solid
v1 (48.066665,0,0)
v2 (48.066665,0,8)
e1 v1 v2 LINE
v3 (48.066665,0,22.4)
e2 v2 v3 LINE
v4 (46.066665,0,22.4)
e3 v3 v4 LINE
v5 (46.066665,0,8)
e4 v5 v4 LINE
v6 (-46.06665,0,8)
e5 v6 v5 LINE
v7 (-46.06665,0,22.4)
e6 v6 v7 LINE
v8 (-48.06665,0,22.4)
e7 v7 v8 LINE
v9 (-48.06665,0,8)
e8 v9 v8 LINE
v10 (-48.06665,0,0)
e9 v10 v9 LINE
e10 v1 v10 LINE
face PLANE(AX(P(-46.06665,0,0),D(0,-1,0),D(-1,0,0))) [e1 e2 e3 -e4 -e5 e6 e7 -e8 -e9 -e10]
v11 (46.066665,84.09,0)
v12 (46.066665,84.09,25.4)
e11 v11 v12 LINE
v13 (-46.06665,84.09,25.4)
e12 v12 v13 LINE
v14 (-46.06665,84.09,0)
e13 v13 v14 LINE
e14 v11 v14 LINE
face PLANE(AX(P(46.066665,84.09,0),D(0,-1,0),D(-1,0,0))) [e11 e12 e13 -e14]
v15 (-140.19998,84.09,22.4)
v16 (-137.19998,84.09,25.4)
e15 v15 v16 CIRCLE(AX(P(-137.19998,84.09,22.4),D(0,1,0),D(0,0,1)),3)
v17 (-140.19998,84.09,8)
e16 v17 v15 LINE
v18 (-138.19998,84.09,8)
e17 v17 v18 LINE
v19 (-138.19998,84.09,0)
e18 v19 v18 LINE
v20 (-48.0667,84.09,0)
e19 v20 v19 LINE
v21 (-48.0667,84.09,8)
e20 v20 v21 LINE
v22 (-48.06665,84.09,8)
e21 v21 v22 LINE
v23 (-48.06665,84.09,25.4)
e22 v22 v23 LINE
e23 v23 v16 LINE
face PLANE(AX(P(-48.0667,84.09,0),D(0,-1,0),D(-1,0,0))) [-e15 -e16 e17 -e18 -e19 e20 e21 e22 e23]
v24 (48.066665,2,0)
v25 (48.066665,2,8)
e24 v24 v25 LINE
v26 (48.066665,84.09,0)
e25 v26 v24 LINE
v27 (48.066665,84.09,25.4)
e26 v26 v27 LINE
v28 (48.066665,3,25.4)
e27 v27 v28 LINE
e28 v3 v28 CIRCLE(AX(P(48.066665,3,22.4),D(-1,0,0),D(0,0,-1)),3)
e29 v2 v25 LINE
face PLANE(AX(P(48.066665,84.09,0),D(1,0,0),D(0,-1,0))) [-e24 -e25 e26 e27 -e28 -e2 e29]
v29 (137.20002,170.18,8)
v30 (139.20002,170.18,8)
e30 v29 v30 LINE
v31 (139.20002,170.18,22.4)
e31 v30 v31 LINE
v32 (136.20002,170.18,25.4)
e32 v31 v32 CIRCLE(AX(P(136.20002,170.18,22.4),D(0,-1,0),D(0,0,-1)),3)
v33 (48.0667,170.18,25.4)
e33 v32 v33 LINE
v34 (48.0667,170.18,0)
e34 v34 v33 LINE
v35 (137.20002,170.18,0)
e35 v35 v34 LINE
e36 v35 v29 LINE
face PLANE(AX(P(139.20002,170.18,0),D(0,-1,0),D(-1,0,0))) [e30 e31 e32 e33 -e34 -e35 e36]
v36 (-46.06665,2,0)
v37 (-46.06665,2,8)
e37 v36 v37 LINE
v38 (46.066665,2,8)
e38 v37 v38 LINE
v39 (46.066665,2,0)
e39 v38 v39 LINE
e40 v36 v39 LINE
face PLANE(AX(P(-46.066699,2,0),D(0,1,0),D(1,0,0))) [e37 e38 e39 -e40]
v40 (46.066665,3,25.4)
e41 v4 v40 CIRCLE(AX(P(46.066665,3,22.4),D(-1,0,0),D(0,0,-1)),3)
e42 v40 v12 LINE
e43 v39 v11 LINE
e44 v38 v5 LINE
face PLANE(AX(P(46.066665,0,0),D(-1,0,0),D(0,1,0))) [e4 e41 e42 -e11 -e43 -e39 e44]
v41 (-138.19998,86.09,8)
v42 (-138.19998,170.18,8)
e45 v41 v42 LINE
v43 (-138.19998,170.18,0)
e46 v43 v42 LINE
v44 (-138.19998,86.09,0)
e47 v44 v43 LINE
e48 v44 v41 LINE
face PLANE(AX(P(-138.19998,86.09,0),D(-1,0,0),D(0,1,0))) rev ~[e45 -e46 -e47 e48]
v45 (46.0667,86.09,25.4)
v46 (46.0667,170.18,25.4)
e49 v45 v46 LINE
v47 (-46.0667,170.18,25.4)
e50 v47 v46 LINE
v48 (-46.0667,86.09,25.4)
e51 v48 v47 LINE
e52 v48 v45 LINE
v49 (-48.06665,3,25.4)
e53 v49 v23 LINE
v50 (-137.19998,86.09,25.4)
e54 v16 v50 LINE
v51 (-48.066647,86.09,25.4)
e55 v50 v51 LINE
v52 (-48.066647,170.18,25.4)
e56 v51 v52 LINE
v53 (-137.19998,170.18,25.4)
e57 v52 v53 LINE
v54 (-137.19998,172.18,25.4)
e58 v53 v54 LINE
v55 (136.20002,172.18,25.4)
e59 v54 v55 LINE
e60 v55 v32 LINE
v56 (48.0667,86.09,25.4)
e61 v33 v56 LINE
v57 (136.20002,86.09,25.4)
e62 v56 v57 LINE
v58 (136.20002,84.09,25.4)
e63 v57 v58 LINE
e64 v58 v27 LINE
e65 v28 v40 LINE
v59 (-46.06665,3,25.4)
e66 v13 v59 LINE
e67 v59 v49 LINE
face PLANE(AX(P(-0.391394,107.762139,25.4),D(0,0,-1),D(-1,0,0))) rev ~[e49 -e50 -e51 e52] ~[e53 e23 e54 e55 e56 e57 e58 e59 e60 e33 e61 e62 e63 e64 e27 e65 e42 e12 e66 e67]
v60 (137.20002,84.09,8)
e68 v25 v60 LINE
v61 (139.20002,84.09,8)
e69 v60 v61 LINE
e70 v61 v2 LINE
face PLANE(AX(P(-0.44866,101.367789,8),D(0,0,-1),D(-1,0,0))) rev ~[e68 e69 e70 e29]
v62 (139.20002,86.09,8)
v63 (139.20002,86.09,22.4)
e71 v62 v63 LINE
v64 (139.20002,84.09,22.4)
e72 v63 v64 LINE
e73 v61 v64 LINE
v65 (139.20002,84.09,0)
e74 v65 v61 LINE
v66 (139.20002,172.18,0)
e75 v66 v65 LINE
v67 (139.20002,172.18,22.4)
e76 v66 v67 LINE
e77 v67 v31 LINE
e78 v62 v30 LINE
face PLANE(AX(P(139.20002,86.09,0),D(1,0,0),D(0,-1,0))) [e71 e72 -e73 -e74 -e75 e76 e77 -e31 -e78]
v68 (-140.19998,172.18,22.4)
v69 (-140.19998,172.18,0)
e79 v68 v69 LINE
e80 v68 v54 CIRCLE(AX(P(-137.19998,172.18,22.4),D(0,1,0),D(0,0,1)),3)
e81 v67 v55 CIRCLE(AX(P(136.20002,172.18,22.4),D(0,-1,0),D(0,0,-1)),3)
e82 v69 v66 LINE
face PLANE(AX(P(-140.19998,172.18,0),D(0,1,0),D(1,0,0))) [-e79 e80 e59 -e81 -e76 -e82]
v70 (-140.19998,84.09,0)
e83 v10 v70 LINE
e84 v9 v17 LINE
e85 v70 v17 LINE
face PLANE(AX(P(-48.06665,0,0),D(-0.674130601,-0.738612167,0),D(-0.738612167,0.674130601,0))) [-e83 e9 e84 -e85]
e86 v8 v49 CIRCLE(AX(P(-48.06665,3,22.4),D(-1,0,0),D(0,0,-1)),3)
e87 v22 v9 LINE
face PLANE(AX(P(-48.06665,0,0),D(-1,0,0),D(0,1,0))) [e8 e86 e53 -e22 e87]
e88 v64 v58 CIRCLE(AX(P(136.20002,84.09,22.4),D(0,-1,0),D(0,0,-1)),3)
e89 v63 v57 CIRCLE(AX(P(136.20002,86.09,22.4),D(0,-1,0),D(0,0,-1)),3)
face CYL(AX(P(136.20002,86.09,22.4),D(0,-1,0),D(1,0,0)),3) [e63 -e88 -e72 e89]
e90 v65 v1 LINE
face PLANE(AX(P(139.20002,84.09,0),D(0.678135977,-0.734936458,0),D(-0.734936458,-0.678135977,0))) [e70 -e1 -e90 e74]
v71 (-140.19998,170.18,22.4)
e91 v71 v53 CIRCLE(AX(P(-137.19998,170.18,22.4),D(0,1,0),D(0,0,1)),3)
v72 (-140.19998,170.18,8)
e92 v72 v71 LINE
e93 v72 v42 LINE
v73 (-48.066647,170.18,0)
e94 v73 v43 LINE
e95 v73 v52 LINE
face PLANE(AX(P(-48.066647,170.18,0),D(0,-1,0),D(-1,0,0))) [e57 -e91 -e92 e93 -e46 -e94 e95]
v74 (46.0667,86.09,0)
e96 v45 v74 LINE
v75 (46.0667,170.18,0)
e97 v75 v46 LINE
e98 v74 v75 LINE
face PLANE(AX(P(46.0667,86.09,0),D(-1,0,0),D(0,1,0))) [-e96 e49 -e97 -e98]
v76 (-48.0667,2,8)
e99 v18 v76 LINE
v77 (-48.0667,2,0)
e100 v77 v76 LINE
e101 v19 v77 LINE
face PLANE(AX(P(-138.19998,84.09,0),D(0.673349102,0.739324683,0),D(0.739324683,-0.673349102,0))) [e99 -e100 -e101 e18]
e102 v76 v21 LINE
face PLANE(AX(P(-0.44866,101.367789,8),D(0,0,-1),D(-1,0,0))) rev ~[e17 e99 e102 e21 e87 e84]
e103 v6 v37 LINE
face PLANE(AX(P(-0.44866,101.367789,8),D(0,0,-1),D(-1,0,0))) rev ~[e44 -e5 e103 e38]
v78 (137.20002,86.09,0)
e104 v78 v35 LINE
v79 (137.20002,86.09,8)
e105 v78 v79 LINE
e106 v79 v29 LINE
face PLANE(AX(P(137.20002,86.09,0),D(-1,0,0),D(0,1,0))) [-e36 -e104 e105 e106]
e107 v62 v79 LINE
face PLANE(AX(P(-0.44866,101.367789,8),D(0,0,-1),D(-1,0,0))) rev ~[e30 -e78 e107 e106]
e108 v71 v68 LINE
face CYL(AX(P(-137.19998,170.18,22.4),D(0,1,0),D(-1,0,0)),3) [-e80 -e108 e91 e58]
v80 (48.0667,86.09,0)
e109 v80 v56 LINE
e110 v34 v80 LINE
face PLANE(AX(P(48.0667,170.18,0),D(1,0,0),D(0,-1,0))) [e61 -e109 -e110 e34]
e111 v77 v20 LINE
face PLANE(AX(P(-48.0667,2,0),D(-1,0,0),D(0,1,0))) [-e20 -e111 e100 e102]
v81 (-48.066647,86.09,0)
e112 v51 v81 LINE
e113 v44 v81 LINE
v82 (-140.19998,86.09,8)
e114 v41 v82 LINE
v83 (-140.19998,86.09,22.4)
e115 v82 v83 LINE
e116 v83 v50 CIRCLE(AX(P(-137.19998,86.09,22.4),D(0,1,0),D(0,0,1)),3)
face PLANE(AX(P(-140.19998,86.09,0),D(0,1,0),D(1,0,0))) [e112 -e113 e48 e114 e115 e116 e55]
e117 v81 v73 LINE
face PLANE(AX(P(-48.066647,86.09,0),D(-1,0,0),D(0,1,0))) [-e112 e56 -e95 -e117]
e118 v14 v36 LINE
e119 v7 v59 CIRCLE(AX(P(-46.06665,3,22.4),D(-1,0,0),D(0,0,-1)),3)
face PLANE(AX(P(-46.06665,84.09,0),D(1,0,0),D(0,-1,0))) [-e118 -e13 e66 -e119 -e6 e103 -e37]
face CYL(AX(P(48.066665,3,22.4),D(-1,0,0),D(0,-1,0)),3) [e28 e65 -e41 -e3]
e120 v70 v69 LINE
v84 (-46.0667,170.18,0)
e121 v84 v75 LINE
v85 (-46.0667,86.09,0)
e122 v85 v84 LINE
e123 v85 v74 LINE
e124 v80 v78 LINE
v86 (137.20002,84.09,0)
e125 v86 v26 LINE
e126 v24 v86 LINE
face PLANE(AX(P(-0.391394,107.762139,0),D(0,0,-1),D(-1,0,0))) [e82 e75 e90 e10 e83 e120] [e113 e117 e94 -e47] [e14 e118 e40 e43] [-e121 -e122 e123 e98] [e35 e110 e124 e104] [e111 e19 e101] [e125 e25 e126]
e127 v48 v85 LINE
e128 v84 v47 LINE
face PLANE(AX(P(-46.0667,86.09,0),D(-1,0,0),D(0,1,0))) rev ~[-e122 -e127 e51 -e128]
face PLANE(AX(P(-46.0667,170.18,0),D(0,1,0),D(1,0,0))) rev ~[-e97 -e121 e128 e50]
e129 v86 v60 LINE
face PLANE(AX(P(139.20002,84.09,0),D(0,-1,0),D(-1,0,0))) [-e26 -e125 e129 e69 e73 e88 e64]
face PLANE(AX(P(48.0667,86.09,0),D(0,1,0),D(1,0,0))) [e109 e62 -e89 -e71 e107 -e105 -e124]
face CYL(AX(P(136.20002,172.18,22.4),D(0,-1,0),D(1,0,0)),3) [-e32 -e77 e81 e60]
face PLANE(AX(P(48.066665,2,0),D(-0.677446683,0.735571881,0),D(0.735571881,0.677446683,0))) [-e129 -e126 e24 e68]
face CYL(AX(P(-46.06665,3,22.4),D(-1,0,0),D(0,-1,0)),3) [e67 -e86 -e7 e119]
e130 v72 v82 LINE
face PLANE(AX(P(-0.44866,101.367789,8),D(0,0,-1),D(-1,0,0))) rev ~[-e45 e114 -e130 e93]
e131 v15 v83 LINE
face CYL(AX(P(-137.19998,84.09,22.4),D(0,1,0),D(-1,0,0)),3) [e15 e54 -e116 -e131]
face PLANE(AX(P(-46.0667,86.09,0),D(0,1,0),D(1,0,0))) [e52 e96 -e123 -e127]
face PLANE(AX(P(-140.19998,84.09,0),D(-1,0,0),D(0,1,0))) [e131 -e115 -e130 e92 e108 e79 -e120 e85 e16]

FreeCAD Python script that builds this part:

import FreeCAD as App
import Part
import Sketcher
Q = App.Units.Quantity


def edges_at(feature, points):
    """Names of the edges that pass closest to the given points."""
    edges = feature.Shape.Edges
    near = lambda p: min(range(len(edges)), key=lambda i: edges[i].distToShape(Part.Vertex(*p))[0])
    return sorted({f"Edge{near(p) + 1}" for p in points})


def add_polygon(sketch, points):
    """Adds a closed chain of lines whose ends are joined by coincident constraints."""
    first, n = sketch.GeometryCount, len(points)
    for a, b in zip(points, points[1:] + points[:1]):
        sketch.addGeometry(Part.LineSegment(App.Vector(*a, 0), App.Vector(*b, 0)), False)
    for i in range(n):
        sketch.addConstraint(Sketcher.Constraint("Coincident", first + i, 2, first + (i + 1) % n, 1))

doc = App.newDocument("Part")
body = doc.addObject("PartDesign::Body", "Body")

# Sketch on XY plane
sketch1 = doc.addObject("Sketcher::SketchObject", "Sketch")
body.addObject(sketch1)
sketch1.AttachmentSupport = (doc.XY_Plane, [""])
sketch1.MapMode = "FlatFace"
add_polygon(sketch1, [(-48.1, 86.1), (-140.2, 86.1), (-140.2, 84.1), (-48.1, 84.1), (-48.1, 0), (-46.1, 0), (-46.1, 84.1), (46.1, 84.1), (46.1, 0), (48.1, 0), (48.1, 84.1), (139.2, 84.1), (139.2, 86.1), (48.1, 86.1), (48.1, 170.2), (139.2, 170.2), (139.2, 172.2), (-140.2, 172.2), (-140.2, 170.2), (-48.1, 170.2)])  # lines 0-19
add_polygon(sketch1, [(-46.1, 86.1), (-46.1, 170.2), (46.1, 170.2), (46.1, 86.1)])  # lines 20-23
sketch1.addConstraint([
    Sketcher.Constraint("Horizontal", 0),
    Sketcher.Constraint("Vertical", 1),
    Sketcher.Constraint("Horizontal", 2),
    Sketcher.Constraint("Vertical", 3),
    Sketcher.Constraint("Horizontal", 4),
    Sketcher.Constraint("Vertical", 5),
    Sketcher.Constraint("Horizontal", 6),
    Sketcher.Constraint("Vertical", 7),
    Sketcher.Constraint("Horizontal", 8),
    Sketcher.Constraint("Vertical", 9),
    Sketcher.Constraint("Horizontal", 10),
    Sketcher.Constraint("Vertical", 11),
    Sketcher.Constraint("Horizontal", 12),
    Sketcher.Constraint("Vertical", 13),
    Sketcher.Constraint("Horizontal", 14),
    Sketcher.Constraint("Vertical", 15),
    Sketcher.Constraint("Horizontal", 16),
    Sketcher.Constraint("Vertical", 17),
    Sketcher.Constraint("Horizontal", 18),
    Sketcher.Constraint("Vertical", 19),
    Sketcher.Constraint("Vertical", 20),
    Sketcher.Constraint("Horizontal", 21),
    Sketcher.Constraint("Vertical", 22),
    Sketcher.Constraint("Horizontal", 23),
    Sketcher.Constraint("PointOnObject", 3, 2, -1),
    Sketcher.Constraint("PointOnObject", 7, 2, -1),
    Sketcher.Constraint("Horizontal", 2, 2, 5, 2),
    Sketcher.Constraint("Horizontal", 6, 2, 9, 2),
    Sketcher.Constraint("Horizontal", 0, 2, 11, 2),
    Sketcher.Constraint("Horizontal", 14, 2, 17, 2),
    Sketcher.Constraint("Horizontal", 18, 2, 20, 2),
    Sketcher.Constraint("Horizontal", 19, 2, 22, 2),
    Sketcher.Constraint("Vertical", 11, 2, 14, 2),
    Sketcher.Constraint("Vertical", 1, 2, 16, 2),
    Sketcher.Constraint("Equal", 4, 8),
    Sketcher.Constraint("Equal", 8, 1),
    Sketcher.Constraint("Equal", 9, 13),
    Sketcher.Constraint("Equal", 11, 15),
    Sketcher.Constraint("DistanceX", 4, 1, 4, 2, Q("2 mm")),
    Sketcher.Constraint("DistanceX", 16, 2, 16, 1, Q("279.4 mm")),
    Sketcher.Constraint("DistanceX", 21, 2, 13, 2, Q("2 mm")),
    Sketcher.Constraint("DistanceY", 3, 2, 3, 1, Q("84.09 mm")),
    Sketcher.Constraint("DistanceX", 21, 1, 21, 2, Q("92.1334 mm")),
    Sketcher.Constraint("DistanceX", 2, 1, 2, 2, Q("92.13333 mm")),
    Sketcher.Constraint("DistanceX", 12, 2, 12, 1, Q("91.13332 mm")),
    Sketcher.Constraint("DistanceX", -1, 1, 12, 2, Q("48.0667 mm")),
    Sketcher.Constraint("DistanceX", 0, 2, 0, 1, Q("92.133333 mm")),
    Sketcher.Constraint("DistanceX", 6, 1, 6, 2, Q("92.133315 mm")),
])
pad1 = doc.addObject("PartDesign::Pad", "Pad")
body.addObject(pad1)
pad1.Profile = sketch1
pad1.Length = 25.4
doc.recompute()

fillet = doc.addObject("PartDesign::Fillet", "Fillet")
body.addObject(fillet)
fillet.Base = (pad1, edges_at(pad1, [
    (-47.067, 0, 25.4),
    (47.067, 0, 25.4),
    (139.2, 171.18, 25.4),
    (139.2, 85.09, 25.4),
    (-140.2, 85.09, 25.4),
    (-140.2, 171.18, 25.4),
]))
fillet.Radius = 3

# Sketch on XY plane
sketch2 = doc.addObject("Sketcher::SketchObject", "Sketch001")
body.addObject(sketch2)
sketch2.AttachmentSupport = (doc.XY_Plane, [""])
sketch2.MapMode = "FlatFace"
add_polygon(sketch2, [(139, 84), (139, 172), (-140, 172), (-140, 84), (-48, 0), (48, 0)])  # lines 0-5
add_polygon(sketch2, [(137, 84), (48, 2), (48, 84)])  # lines 6-8
add_polygon(sketch2, [(-46, 2), (-46, 84), (46, 84), (46, 2)])  # lines 9-12
add_polygon(sketch2, [(-48, 2), (-138, 84), (-48, 84)])  # lines 13-15
add_polygon(sketch2, [(48, 86), (48, 170), (137, 170), (137, 86)])  # lines 16-19
add_polygon(sketch2, [(-46, 86), (-46, 170), (46, 170), (46, 86)])  # lines 20-23
add_polygon(sketch2, [(-138, 86), (-138, 170), (-48, 170), (-48, 86)])  # lines 24-27
sketch2.addConstraint([
    Sketcher.Constraint("Vertical", 0),
    Sketcher.Constraint("Horizontal", 1),
    Sketcher.Constraint("Vertical", 2),
    Sketcher.Constraint("Horizontal", 4),
    Sketcher.Constraint("Vertical", 7),
    Sketcher.Constraint("Horizontal", 8),
    Sketcher.Constraint("Vertical", 9),
    Sketcher.Constraint("Horizontal", 10),
    Sketcher.Constraint("Vertical", 11),
    Sketcher.Constraint("Horizontal", 12),
    Sketcher.Constraint("Horizontal", 14),
    Sketcher.Constraint("Vertical", 15),
    Sketcher.Constraint("Vertical", 16),
    Sketcher.Constraint("Horizontal", 17),
    Sketcher.Constraint("Vertical", 18),
    Sketcher.Constraint("Horizontal", 19),
    Sketcher.Constraint("Vertical", 20),
    Sketcher.Constraint("Horizontal", 21),
    Sketcher.Constraint("Vertical", 22),
    Sketcher.Constraint("Horizontal", 23),
    Sketcher.Constraint("Vertical", 24),
    Sketcher.Constraint("Horizontal", 25),
    Sketcher.Constraint("Vertical", 26),
    Sketcher.Constraint("Horizontal", 27),
    Sketcher.Constraint("PointOnObject", 3, 2, -1),
    Sketcher.Constraint("Horizontal", 2, 2, 5, 2),
    Sketcher.Constraint("Horizontal", 5, 2, 7, 2),
    Sketcher.Constraint("Horizontal", 8, 2, 9, 2),
    Sketcher.Constraint("Horizontal", 6, 2, 11, 2),
    Sketcher.Constraint("Horizontal", 10, 2, 13, 2),
    Sketcher.Constraint("Horizontal", 12, 2, 15, 2),
    Sketcher.Constraint("Horizontal", 17, 2, 20, 2),
    Sketcher.Constraint("Horizontal", 19, 2, 22, 2),
    Sketcher.Constraint("Horizontal", 21, 2, 24, 2),
    Sketcher.Constraint("Horizontal", 23, 2, 26, 2),
    Sketcher.Constraint("Vertical", 4, 2, 6, 2),
    Sketcher.Constraint("Vertical", 8, 2, 17, 2),
    Sketcher.Constraint("Vertical", 12, 2, 20, 2),
    Sketcher.Constraint("Vertical", 13, 2, 24, 2),
    Sketcher.Constraint("DistanceX", 1, 2, 1, 1, Q("279.4 mm")),
    Sketcher.Constraint("DistanceY", -1, 1, 6, 2, Q("2 mm")),
    Sketcher.Constraint("DistanceX", 8, 2, 5, 2, Q("2 mm")),
    Sketcher.Constraint("DistanceX", 10, 2, 7, 2, Q("2 mm")),
    Sketcher.Constraint("DistanceX", 2, 2, 13, 2, Q("2 mm")),
    Sketcher.Constraint("DistanceX", 14, 2, 9, 2, Q("2 mm")),
    Sketcher.Constraint("DistanceY", 16, 2, 0, 2, Q("2 mm")),
    Sketcher.Constraint("DistanceY", 8, 2, 18, 2, Q("2 mm")),
    Sketcher.Constraint("DistanceX", 21, 2, 16, 2, Q("2 mm")),
    Sketcher.Constraint("DistanceY", 0, 1, 0, 2, Q("88.09 mm")),
    Sketcher.Constraint("DistanceY", 7, 1, 7, 2, Q("82.09 mm")),
    Sketcher.Constraint("DistanceX", 21, 1, 21, 2, Q("92.1334 mm")),
    Sketcher.Constraint("DistanceX", 14, 1, 14, 2, Q("90.13328 mm")),
    Sketcher.Constraint("DistanceX", 9, 2, -1, 1, Q("46.066699 mm")),
    Sketcher.Constraint("Distance", 3, Q("124.738441 mm")),
    Sketcher.Constraint("Distance", 5, Q("124.001679 mm")),
    Sketcher.Constraint("DistanceX", 25, 1, 25, 2, Q("90.133333 mm")),
])
pad2 = doc.addObject("PartDesign::Pad", "Pad001")
body.addObject(pad2)
pad2.Profile = sketch2
pad2.Length = 8

doc.recompute()
